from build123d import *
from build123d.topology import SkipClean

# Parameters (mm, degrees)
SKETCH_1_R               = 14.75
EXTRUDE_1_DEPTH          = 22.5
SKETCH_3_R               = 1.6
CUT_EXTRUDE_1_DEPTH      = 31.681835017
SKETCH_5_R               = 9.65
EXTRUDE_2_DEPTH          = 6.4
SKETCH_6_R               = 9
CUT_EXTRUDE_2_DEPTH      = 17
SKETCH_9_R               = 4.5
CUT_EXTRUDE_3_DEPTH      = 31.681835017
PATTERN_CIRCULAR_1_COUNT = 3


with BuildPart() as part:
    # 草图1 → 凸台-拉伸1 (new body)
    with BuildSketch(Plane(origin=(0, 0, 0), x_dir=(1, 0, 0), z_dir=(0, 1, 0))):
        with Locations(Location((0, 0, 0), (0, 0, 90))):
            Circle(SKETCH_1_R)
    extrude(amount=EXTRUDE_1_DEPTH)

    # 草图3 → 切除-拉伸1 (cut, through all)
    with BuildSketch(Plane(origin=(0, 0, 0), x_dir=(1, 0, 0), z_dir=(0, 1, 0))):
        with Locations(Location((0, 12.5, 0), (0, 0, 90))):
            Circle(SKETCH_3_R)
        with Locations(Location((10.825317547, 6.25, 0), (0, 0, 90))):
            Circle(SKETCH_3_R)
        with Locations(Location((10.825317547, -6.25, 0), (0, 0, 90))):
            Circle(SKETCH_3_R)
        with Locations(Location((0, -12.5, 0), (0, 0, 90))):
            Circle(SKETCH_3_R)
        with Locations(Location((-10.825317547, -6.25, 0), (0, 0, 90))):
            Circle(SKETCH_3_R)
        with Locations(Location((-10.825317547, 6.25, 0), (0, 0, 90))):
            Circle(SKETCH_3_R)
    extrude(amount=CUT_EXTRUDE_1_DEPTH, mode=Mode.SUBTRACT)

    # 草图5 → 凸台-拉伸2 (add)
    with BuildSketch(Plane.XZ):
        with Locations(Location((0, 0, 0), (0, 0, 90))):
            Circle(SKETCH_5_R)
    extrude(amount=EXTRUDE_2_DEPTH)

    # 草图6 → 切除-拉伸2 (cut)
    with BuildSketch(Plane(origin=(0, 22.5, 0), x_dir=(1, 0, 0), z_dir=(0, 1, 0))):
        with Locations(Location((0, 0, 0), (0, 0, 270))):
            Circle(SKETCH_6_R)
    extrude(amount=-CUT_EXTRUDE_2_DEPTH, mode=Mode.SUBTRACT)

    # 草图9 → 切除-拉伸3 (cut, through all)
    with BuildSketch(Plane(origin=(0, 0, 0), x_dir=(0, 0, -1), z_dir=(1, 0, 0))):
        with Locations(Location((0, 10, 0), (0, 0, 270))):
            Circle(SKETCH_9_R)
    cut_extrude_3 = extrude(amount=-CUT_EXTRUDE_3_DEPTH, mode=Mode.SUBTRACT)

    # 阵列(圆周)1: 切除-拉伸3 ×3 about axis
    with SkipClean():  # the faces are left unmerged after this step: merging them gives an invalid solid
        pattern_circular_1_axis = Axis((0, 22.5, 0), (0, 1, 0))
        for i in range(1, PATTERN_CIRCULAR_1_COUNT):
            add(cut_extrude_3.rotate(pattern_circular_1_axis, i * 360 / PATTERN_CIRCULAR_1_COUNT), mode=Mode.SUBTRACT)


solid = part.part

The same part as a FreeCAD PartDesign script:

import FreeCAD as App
import Part
import Sketcher

V = App.Vector
Q = App.Units.Quantity

doc = App.newDocument("Part")
body = doc.addObject("PartDesign::Body", "Body")

sketch1 = body.newObject("Sketcher::SketchObject", "Sketch")
sketch1.AttachmentSupport = (doc.getObject("XZ_Plane"), [""])
sketch1.MapMode = "FlatFace"
sketch1.addGeometry(Part.Circle(V(0, 0, 0), V(0, 0, 1), 14.75), False)
sketch1.addConstraint(Sketcher.Constraint("Coincident", 0, 3, -1, 1))
sketch1.addConstraint(Sketcher.Constraint("Diameter", 0, Q("29.5 mm")))
pad1 = body.newObject("PartDesign::Pad", "Pad")
pad1.Profile = sketch1
pad1.Length = 22.5
pad1.Reversed = True

sketch2 = body.newObject("Sketcher::SketchObject", "Sketch001")
sketch2.AttachmentSupport = (doc.getObject("XZ_Plane"), [""])
sketch2.MapMode = "FlatFace"
sketch2.addGeometry(Part.Circle(V(0, -12.5, 0), V(0, 0, 1), 1.6), False)
sketch2.addGeometry(Part.Circle(V(10.825318, -6.25, 0), V(0, 0, 1), 1.6), False)
sketch2.addGeometry(Part.Circle(V(10.825318, 6.25, 0), V(0, 0, 1), 1.6), False)
sketch2.addGeometry(Part.Circle(V(0, 12.5, 0), V(0, 0, 1), 1.6), False)
sketch2.addGeometry(Part.Circle(V(-10.825318, 6.25, 0), V(0, 0, 1), 1.6), False)
sketch2.addGeometry(Part.Circle(V(-10.825318, -6.25, 0), V(0, 0, 1), 1.6), False)
sketch2.addConstraint(Sketcher.Constraint("Equal", 0, 1))
sketch2.addConstraint(Sketcher.Constraint("Equal", 1, 2))
sketch2.addConstraint(Sketcher.Constraint("Equal", 2, 3))
sketch2.addConstraint(Sketcher.Constraint("Equal", 3, 4))
sketch2.addConstraint(Sketcher.Constraint("Equal", 4, 5))
sketch2.addConstraint(Sketcher.Constraint("Symmetric", 0, 3, 3, 3, -1, 1))
sketch2.addConstraint(Sketcher.Constraint("Symmetric", 1, 3, 4, 3, -1, 1))
sketch2.addConstraint(Sketcher.Constraint("Symmetric", 2, 3, 5, 3, -1, 1))
sketch2.addConstraint(Sketcher.Constraint("Symmetric", 2, 3, 4, 3, -2))
sketch2.addConstraint(Sketcher.Constraint("PointOnObject", 0, 3, -2))
sketch2.addConstraint(Sketcher.Constraint("Diameter", 0, Q("3.2 mm")))
sketch2.addConstraint(Sketcher.Constraint("DistanceY", 0, 3, 3, 3, Q("25 mm")))
sketch2.addConstraint(Sketcher.Constraint("DistanceY", 1, 3, 2, 3, Q("12.5 mm")))
sketch2.addConstraint(Sketcher.Constraint("DistanceX", -1, 1, 1, 3, Q("10.825318 mm")))
pocket1 = body.newObject("PartDesign::Pocket", "Pocket")
pocket1.Profile = sketch2
pocket1.Type = "ThroughAll"

sketch3 = body.newObject("Sketcher::SketchObject", "Sketch002")
sketch3.AttachmentSupport = (doc.getObject("XZ_Plane"), [""])
sketch3.MapMode = "FlatFace"
sketch3.addGeometry(Part.Circle(V(0, 0, 0), V(0, 0, 1), 9.65), False)
sketch3.addConstraint(Sketcher.Constraint("Coincident", 0, 3, -1, 1))
sketch3.addConstraint(Sketcher.Constraint("Diameter", 0, Q("19.3 mm")))
pad2 = body.newObject("PartDesign::Pad", "Pad001")
pad2.Profile = sketch3
pad2.Length = 6.4

sketch4 = body.newObject("Sketcher::SketchObject", "Sketch003")
sketch4.AttachmentSupport = (doc.getObject("XZ_Plane"), [""])
sketch4.MapMode = "FlatFace"
sketch4.AttachmentOffset = App.Placement(V(0, 0, -22.5), App.Rotation())
sketch4.addGeometry(Part.Circle(V(0, 0, 0), V(0, 0, 1), 9), False)
sketch4.addConstraint(Sketcher.Constraint("Coincident", 0, 3, -1, 1))
sketch4.addConstraint(Sketcher.Constraint("Diameter", 0, Q("18 mm")))
pocket2 = body.newObject("PartDesign::Pocket", "Pocket001")
pocket2.Profile = sketch4
pocket2.Length = 17
pocket2.Reversed = True

sketch5 = body.newObject("Sketcher::SketchObject", "Sketch004")
sketch5.AttachmentSupport = (doc.getObject("YZ_Plane"), [""])
sketch5.MapMode = "FlatFace"
sketch5.addGeometry(Part.Circle(V(10, 0, 0), V(0, 0, 1), 4.5), False)
sketch5.addConstraint(Sketcher.Constraint("PointOnObject", 0, 3, -1))
sketch5.addConstraint(Sketcher.Constraint("Diameter", 0, Q("9 mm")))
sketch5.addConstraint(Sketcher.Constraint("DistanceX", -1, 1, 0, 3, Q("10 mm")))
pocket3 = body.newObject("PartDesign::Pocket", "Pocket002")
pocket3.Profile = sketch5
pocket3.Type = "ThroughAll"
doc.recompute()

polarpattern = body.newObject("PartDesign::PolarPattern", "PolarPattern")
polarpattern.Originals = [pocket3]
polarpattern.Axis = (doc.getObject("Y_Axis"), [""])
polarpattern.Angle = 360
polarpattern.Occurrences = 3
body.Tip = polarpattern

doc.recompute()
